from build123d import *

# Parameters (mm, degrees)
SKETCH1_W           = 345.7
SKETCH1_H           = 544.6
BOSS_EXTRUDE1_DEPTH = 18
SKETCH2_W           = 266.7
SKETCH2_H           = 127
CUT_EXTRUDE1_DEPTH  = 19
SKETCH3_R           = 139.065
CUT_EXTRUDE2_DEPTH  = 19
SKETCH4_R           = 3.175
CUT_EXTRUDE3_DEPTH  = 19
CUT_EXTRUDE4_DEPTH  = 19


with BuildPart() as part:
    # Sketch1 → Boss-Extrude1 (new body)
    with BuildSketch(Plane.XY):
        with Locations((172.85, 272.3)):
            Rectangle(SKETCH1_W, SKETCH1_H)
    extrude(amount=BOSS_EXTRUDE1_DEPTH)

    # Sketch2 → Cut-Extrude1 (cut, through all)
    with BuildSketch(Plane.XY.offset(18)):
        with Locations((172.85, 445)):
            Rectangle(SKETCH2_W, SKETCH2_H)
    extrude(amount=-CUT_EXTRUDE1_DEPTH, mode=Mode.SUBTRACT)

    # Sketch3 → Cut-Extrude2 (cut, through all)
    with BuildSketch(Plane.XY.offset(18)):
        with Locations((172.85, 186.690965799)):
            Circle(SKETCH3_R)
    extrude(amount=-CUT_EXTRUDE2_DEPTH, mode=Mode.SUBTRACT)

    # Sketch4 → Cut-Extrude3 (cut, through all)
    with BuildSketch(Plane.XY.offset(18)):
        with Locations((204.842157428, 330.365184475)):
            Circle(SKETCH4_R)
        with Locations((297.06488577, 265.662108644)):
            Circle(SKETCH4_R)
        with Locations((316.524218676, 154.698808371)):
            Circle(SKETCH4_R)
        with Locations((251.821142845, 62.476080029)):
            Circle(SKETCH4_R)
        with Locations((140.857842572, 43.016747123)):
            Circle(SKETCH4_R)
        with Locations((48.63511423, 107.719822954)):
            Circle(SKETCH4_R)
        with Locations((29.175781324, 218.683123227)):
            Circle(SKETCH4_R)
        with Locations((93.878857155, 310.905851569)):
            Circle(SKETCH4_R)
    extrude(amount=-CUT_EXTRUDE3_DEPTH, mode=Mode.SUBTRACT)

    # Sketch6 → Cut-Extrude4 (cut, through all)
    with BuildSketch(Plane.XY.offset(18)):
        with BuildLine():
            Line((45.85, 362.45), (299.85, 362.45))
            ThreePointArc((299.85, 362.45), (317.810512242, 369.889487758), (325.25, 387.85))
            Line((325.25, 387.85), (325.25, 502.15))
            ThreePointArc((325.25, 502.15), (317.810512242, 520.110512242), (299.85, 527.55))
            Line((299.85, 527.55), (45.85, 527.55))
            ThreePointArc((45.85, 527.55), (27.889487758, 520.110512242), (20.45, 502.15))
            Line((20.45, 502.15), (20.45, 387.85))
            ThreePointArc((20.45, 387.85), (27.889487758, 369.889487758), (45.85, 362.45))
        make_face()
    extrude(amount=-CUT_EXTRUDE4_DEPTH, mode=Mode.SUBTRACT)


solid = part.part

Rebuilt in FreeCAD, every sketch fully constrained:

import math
import FreeCAD as App
import Part
import Sketcher
Q = App.Units.Quantity


def add_polygon(sketch, points):
    """Adds a closed chain of lines whose ends are joined by coincident constraints."""
    first, n = sketch.GeometryCount, len(points)
    for a, b in zip(points, points[1:] + points[:1]):
        sketch.addGeometry(Part.LineSegment(App.Vector(*a, 0), App.Vector(*b, 0)), False)
    for i in range(n):
        sketch.addConstraint(Sketcher.Constraint("Coincident", first + i, 2, first + (i + 1) % n, 1))

doc = App.newDocument("Part")
params = doc.addObject("Spreadsheet::Sheet", "Params")
for row, (alias, value) in enumerate([
    ("pad1_length", "18 mm"),
    ("sketch2_height", "5 in"),
    ("sketch2_width", "10.5 in"),
    ("sketch3_diameter", "10.95 in"),
    ("sketch4_diameter", "0.25 in"),
    ("sketch5_radius", "1 in"),
    ("sketch5_width", "10 in"),
    ("sketch5_height", "4.5 in"),
], start=1):
    params.set(f"A{row}", alias)
    params.set(f"B{row}", "=" + value)
    params.setAlias(f"B{row}", alias)

body = doc.addObject("PartDesign::Body", "Body")

# Sketch on XY plane
sketch1 = body.newObject("Sketcher::SketchObject", "Sketch")
sketch1.AttachmentSupport = (doc.getObject("XY_Plane"), [""])
sketch1.MapMode = "FlatFace"
add_polygon(sketch1, [(0, 545), (0, 0), (346, 0), (346, 545)])  # lines 0-3
sketch1.addConstraint([
    Sketcher.Constraint("Vertical", 0),
    Sketcher.Constraint("Horizontal", 1),
    Sketcher.Constraint("Vertical", 2),
    Sketcher.Constraint("Horizontal", 3),
    Sketcher.Constraint("Coincident", 0, 2, -1, 1),
    Sketcher.Constraint("DistanceX", 1, 1, 1, 2, 345.7),
    Sketcher.Constraint("DistanceY", 0, 2, 0, 1, 544.6),
])
pad1 = body.newObject("PartDesign::Pad", "Pad")
pad1.Profile = sketch1
pad1.setExpression("Length", "Params.pad1_length")

# Sketch on XY plane
sketch2 = body.newObject("Sketcher::SketchObject", "Sketch001")
sketch2.AttachmentSupport = (doc.getObject("XY_Plane"), [""])
sketch2.MapMode = "FlatFace"
sketch2.AttachmentOffset = App.Placement(App.Vector(0, 0, 18), App.Rotation())
add_polygon(sketch2, [(40, 508), (40, 382), (306, 382), (306, 508)])  # lines 0-3
sketch2.addConstraint([
    Sketcher.Constraint("Vertical", 0),
    Sketcher.Constraint("Horizontal", 1),
    Sketcher.Constraint("Vertical", 2),
    Sketcher.Constraint("Horizontal", 3),
    Sketcher.Constraint("DistanceY", 0, 2, 0, 1, Q("5 in")),
    Sketcher.Constraint("DistanceX", 1, 1, 1, 2, Q("10.5 in")),
    Sketcher.Constraint("DistanceX", -1, 1, 0, 2, 39.5),
    Sketcher.Constraint("DistanceY", -1, 1, 0, 2, 381.5),
])
sketch2.setExpression("Constraints[8]", "Params.sketch2_height")
sketch2.setExpression("Constraints[9]", "Params.sketch2_width")
pocket1 = body.newObject("PartDesign::Pocket", "Pocket")
pocket1.Profile = sketch2
pocket1.Type = "ThroughAll"

# Sketch on XY plane
sketch3 = body.newObject("Sketcher::SketchObject", "Sketch002")
sketch3.AttachmentSupport = (doc.getObject("XY_Plane"), [""])
sketch3.MapMode = "FlatFace"
sketch3.AttachmentOffset = App.Placement(App.Vector(0, 0, 18), App.Rotation())
sketch3.addGeometry(Part.Circle(App.Vector(173, 187, 0), App.Vector(0, 0, 1), 139), False)
sketch3.addConstraint([
    Sketcher.Constraint("Diameter", 0, Q("10.95 in")),
    Sketcher.Constraint("DistanceX", -1, 1, 0, 3, 172.85),
    Sketcher.Constraint("DistanceY", -1, 1, 0, 3, 186.690966),
])
sketch3.setExpression("Constraints[0]", "Params.sketch3_diameter")
pocket2 = body.newObject("PartDesign::Pocket", "Pocket001")
pocket2.Profile = sketch3
pocket2.Type = "ThroughAll"

# Sketch on XY plane
sketch4 = body.newObject("Sketcher::SketchObject", "Sketch003")
sketch4.AttachmentSupport = (doc.getObject("XY_Plane"), [""])
sketch4.MapMode = "FlatFace"
sketch4.AttachmentOffset = App.Placement(App.Vector(0, 0, 18), App.Rotation())
sketch4.addGeometry([
    Part.Circle(App.Vector(204.8, 330.4, 0), App.Vector(0, 0, 1), 3.2),  # 0
    Part.Circle(App.Vector(297.1, 265.7, 0), App.Vector(0, 0, 1), 3.2),  # 1
    Part.Circle(App.Vector(316.5, 154.7, 0), App.Vector(0, 0, 1), 3.2),  # 2
    Part.Circle(App.Vector(251.8, 62.5, 0), App.Vector(0, 0, 1), 3.2),  # 3
    Part.Circle(App.Vector(140.9, 43, 0), App.Vector(0, 0, 1), 3.2),  # 4
    Part.Circle(App.Vector(48.6, 107.7, 0), App.Vector(0, 0, 1), 3.2),  # 5
    Part.Circle(App.Vector(29.2, 218.7, 0), App.Vector(0, 0, 1), 3.2),  # 6
    Part.Circle(App.Vector(93.9, 310.9, 0), App.Vector(0, 0, 1), 3.2),  # 7
], False)
sketch4.addConstraint([
    Sketcher.Constraint("Equal", 0, 1),
    Sketcher.Constraint("Equal", 1, 2),
    Sketcher.Constraint("Equal", 2, 3),
    Sketcher.Constraint("Equal", 3, 4),
    Sketcher.Constraint("Equal", 4, 5),
    Sketcher.Constraint("Equal", 5, 6),
    Sketcher.Constraint("Equal", 6, 7),
    Sketcher.Constraint("Diameter", 0, Q("0.25 in")),
    Sketcher.Constraint("DistanceY", 2, 3, 1, 3, 110.9633),
    Sketcher.Constraint("DistanceX", 4, 3, 3, 3, 110.9633),
    Sketcher.Constraint("DistanceY", 5, 3, 6, 3, 110.9633),
    Sketcher.Constraint("DistanceX", 7, 3, 0, 3, 110.9633),
    Sketcher.Constraint("DistanceY", -1, 1, 1, 3, 265.662109),
    Sketcher.Constraint("DistanceX", -1, 1, 2, 3, 316.524219),
    Sketcher.Constraint("DistanceY", -1, 1, 3, 3, 62.47608),
    Sketcher.Constraint("DistanceX", -1, 1, 6, 3, 29.175781),
    Sketcher.Constraint("DistanceY", -1, 1, 7, 3, 310.905852),
    Sketcher.Constraint("DistanceX", 0, 3, 1, 3, 92.222728),
    Sketcher.Constraint("DistanceX", 0, 3, 2, 3, 111.682061),
    Sketcher.Constraint("DistanceY", 4, 3, 2, 3, 111.682061),
    Sketcher.Constraint("DistanceX", 5, 3, 4, 3, 92.222728),
    Sketcher.Constraint("DistanceY", 5, 3, 0, 3, 222.645362),
    Sketcher.Constraint("DistanceX", 5, 3, 1, 3, 248.429772),
    Sketcher.Constraint("DistanceY", 6, 3, 7, 3, 92.222728),
])
sketch4.setExpression("Constraints[7]", "Params.sketch4_diameter")
pocket3 = body.newObject("PartDesign::Pocket", "Pocket002")
pocket3.Profile = sketch4
pocket3.Type = "ThroughAll"

# Sketch on XY plane
sketch5 = body.newObject("Sketcher::SketchObject", "Sketch004")
sketch5.AttachmentSupport = (doc.getObject("XY_Plane"), [""])
sketch5.MapMode = "FlatFace"
sketch5.AttachmentOffset = App.Placement(App.Vector(0, 0, 18), App.Rotation())
sketch5.addGeometry([
    Part.LineSegment(App.Vector(46, 362, 0), App.Vector(300, 362, 0)),  # 0
    Part.ArcOfCircle(Part.Circle(App.Vector(300, 388, 0), App.Vector(0, 0, 1), 25), math.radians(-90), math.radians(0)),  # 1
    Part.LineSegment(App.Vector(325, 388, 0), App.Vector(325, 502, 0)),  # 2
    Part.ArcOfCircle(Part.Circle(App.Vector(300, 502, 0), App.Vector(0, 0, 1), 25), math.radians(0), math.radians(90)),  # 3
    Part.LineSegment(App.Vector(300, 528, 0), App.Vector(46, 528, 0)),  # 4
    Part.ArcOfCircle(Part.Circle(App.Vector(46, 502, 0), App.Vector(0, 0, 1), 25), math.radians(90), math.radians(180)),  # 5
    Part.LineSegment(App.Vector(20, 502, 0), App.Vector(20, 388, 0)),  # 6
    Part.ArcOfCircle(Part.Circle(App.Vector(46, 388, 0), App.Vector(0, 0, 1), 25), math.radians(180), math.radians(270)),  # 7
], False)
sketch5.addConstraint([
    Sketcher.Constraint("Tangent", 0, 2, 1, 1),
    Sketcher.Constraint("Tangent", 1, 2, 2, 1),
    Sketcher.Constraint("Tangent", 2, 2, 3, 1),
    Sketcher.Constraint("Tangent", 3, 2, 4, 1),
    Sketcher.Constraint("Tangent", 4, 2, 5, 1),
    Sketcher.Constraint("Tangent", 5, 2, 6, 1),
    Sketcher.Constraint("Tangent", 6, 2, 7, 1),
    Sketcher.Constraint("Tangent", 7, 2, 0, 1),
    Sketcher.Constraint("Horizontal", 0),
    Sketcher.Constraint("Vertical", 2),
    Sketcher.Constraint("Horizontal", 4),
    Sketcher.Constraint("Vertical", 6),
    Sketcher.Constraint("Equal", 1, 3),
    Sketcher.Constraint("Equal", 3, 5),
    Sketcher.Constraint("Equal", 5, 7),
    Sketcher.Constraint("Radius", 1, Q("1 in")),
    Sketcher.Constraint("DistanceX", 0, 1, 0, 2, Q("10 in")),
    Sketcher.Constraint("DistanceY", 2, 1, 2, 2, Q("4.5 in")),
    Sketcher.Constraint("DistanceX", -1, 1, 1, 3, 299.85),
    Sketcher.Constraint("DistanceY", -1, 1, 1, 3, 387.85),
])
sketch5.setExpression("Constraints[15]", "Params.sketch5_radius")
sketch5.setExpression("Constraints[16]", "Params.sketch5_width")
sketch5.setExpression("Constraints[17]", "Params.sketch5_height")
pocket4 = body.newObject("PartDesign::Pocket", "Pocket003")
pocket4.Profile = sketch5
pocket4.Type = "ThroughAll"

doc.recompute()
